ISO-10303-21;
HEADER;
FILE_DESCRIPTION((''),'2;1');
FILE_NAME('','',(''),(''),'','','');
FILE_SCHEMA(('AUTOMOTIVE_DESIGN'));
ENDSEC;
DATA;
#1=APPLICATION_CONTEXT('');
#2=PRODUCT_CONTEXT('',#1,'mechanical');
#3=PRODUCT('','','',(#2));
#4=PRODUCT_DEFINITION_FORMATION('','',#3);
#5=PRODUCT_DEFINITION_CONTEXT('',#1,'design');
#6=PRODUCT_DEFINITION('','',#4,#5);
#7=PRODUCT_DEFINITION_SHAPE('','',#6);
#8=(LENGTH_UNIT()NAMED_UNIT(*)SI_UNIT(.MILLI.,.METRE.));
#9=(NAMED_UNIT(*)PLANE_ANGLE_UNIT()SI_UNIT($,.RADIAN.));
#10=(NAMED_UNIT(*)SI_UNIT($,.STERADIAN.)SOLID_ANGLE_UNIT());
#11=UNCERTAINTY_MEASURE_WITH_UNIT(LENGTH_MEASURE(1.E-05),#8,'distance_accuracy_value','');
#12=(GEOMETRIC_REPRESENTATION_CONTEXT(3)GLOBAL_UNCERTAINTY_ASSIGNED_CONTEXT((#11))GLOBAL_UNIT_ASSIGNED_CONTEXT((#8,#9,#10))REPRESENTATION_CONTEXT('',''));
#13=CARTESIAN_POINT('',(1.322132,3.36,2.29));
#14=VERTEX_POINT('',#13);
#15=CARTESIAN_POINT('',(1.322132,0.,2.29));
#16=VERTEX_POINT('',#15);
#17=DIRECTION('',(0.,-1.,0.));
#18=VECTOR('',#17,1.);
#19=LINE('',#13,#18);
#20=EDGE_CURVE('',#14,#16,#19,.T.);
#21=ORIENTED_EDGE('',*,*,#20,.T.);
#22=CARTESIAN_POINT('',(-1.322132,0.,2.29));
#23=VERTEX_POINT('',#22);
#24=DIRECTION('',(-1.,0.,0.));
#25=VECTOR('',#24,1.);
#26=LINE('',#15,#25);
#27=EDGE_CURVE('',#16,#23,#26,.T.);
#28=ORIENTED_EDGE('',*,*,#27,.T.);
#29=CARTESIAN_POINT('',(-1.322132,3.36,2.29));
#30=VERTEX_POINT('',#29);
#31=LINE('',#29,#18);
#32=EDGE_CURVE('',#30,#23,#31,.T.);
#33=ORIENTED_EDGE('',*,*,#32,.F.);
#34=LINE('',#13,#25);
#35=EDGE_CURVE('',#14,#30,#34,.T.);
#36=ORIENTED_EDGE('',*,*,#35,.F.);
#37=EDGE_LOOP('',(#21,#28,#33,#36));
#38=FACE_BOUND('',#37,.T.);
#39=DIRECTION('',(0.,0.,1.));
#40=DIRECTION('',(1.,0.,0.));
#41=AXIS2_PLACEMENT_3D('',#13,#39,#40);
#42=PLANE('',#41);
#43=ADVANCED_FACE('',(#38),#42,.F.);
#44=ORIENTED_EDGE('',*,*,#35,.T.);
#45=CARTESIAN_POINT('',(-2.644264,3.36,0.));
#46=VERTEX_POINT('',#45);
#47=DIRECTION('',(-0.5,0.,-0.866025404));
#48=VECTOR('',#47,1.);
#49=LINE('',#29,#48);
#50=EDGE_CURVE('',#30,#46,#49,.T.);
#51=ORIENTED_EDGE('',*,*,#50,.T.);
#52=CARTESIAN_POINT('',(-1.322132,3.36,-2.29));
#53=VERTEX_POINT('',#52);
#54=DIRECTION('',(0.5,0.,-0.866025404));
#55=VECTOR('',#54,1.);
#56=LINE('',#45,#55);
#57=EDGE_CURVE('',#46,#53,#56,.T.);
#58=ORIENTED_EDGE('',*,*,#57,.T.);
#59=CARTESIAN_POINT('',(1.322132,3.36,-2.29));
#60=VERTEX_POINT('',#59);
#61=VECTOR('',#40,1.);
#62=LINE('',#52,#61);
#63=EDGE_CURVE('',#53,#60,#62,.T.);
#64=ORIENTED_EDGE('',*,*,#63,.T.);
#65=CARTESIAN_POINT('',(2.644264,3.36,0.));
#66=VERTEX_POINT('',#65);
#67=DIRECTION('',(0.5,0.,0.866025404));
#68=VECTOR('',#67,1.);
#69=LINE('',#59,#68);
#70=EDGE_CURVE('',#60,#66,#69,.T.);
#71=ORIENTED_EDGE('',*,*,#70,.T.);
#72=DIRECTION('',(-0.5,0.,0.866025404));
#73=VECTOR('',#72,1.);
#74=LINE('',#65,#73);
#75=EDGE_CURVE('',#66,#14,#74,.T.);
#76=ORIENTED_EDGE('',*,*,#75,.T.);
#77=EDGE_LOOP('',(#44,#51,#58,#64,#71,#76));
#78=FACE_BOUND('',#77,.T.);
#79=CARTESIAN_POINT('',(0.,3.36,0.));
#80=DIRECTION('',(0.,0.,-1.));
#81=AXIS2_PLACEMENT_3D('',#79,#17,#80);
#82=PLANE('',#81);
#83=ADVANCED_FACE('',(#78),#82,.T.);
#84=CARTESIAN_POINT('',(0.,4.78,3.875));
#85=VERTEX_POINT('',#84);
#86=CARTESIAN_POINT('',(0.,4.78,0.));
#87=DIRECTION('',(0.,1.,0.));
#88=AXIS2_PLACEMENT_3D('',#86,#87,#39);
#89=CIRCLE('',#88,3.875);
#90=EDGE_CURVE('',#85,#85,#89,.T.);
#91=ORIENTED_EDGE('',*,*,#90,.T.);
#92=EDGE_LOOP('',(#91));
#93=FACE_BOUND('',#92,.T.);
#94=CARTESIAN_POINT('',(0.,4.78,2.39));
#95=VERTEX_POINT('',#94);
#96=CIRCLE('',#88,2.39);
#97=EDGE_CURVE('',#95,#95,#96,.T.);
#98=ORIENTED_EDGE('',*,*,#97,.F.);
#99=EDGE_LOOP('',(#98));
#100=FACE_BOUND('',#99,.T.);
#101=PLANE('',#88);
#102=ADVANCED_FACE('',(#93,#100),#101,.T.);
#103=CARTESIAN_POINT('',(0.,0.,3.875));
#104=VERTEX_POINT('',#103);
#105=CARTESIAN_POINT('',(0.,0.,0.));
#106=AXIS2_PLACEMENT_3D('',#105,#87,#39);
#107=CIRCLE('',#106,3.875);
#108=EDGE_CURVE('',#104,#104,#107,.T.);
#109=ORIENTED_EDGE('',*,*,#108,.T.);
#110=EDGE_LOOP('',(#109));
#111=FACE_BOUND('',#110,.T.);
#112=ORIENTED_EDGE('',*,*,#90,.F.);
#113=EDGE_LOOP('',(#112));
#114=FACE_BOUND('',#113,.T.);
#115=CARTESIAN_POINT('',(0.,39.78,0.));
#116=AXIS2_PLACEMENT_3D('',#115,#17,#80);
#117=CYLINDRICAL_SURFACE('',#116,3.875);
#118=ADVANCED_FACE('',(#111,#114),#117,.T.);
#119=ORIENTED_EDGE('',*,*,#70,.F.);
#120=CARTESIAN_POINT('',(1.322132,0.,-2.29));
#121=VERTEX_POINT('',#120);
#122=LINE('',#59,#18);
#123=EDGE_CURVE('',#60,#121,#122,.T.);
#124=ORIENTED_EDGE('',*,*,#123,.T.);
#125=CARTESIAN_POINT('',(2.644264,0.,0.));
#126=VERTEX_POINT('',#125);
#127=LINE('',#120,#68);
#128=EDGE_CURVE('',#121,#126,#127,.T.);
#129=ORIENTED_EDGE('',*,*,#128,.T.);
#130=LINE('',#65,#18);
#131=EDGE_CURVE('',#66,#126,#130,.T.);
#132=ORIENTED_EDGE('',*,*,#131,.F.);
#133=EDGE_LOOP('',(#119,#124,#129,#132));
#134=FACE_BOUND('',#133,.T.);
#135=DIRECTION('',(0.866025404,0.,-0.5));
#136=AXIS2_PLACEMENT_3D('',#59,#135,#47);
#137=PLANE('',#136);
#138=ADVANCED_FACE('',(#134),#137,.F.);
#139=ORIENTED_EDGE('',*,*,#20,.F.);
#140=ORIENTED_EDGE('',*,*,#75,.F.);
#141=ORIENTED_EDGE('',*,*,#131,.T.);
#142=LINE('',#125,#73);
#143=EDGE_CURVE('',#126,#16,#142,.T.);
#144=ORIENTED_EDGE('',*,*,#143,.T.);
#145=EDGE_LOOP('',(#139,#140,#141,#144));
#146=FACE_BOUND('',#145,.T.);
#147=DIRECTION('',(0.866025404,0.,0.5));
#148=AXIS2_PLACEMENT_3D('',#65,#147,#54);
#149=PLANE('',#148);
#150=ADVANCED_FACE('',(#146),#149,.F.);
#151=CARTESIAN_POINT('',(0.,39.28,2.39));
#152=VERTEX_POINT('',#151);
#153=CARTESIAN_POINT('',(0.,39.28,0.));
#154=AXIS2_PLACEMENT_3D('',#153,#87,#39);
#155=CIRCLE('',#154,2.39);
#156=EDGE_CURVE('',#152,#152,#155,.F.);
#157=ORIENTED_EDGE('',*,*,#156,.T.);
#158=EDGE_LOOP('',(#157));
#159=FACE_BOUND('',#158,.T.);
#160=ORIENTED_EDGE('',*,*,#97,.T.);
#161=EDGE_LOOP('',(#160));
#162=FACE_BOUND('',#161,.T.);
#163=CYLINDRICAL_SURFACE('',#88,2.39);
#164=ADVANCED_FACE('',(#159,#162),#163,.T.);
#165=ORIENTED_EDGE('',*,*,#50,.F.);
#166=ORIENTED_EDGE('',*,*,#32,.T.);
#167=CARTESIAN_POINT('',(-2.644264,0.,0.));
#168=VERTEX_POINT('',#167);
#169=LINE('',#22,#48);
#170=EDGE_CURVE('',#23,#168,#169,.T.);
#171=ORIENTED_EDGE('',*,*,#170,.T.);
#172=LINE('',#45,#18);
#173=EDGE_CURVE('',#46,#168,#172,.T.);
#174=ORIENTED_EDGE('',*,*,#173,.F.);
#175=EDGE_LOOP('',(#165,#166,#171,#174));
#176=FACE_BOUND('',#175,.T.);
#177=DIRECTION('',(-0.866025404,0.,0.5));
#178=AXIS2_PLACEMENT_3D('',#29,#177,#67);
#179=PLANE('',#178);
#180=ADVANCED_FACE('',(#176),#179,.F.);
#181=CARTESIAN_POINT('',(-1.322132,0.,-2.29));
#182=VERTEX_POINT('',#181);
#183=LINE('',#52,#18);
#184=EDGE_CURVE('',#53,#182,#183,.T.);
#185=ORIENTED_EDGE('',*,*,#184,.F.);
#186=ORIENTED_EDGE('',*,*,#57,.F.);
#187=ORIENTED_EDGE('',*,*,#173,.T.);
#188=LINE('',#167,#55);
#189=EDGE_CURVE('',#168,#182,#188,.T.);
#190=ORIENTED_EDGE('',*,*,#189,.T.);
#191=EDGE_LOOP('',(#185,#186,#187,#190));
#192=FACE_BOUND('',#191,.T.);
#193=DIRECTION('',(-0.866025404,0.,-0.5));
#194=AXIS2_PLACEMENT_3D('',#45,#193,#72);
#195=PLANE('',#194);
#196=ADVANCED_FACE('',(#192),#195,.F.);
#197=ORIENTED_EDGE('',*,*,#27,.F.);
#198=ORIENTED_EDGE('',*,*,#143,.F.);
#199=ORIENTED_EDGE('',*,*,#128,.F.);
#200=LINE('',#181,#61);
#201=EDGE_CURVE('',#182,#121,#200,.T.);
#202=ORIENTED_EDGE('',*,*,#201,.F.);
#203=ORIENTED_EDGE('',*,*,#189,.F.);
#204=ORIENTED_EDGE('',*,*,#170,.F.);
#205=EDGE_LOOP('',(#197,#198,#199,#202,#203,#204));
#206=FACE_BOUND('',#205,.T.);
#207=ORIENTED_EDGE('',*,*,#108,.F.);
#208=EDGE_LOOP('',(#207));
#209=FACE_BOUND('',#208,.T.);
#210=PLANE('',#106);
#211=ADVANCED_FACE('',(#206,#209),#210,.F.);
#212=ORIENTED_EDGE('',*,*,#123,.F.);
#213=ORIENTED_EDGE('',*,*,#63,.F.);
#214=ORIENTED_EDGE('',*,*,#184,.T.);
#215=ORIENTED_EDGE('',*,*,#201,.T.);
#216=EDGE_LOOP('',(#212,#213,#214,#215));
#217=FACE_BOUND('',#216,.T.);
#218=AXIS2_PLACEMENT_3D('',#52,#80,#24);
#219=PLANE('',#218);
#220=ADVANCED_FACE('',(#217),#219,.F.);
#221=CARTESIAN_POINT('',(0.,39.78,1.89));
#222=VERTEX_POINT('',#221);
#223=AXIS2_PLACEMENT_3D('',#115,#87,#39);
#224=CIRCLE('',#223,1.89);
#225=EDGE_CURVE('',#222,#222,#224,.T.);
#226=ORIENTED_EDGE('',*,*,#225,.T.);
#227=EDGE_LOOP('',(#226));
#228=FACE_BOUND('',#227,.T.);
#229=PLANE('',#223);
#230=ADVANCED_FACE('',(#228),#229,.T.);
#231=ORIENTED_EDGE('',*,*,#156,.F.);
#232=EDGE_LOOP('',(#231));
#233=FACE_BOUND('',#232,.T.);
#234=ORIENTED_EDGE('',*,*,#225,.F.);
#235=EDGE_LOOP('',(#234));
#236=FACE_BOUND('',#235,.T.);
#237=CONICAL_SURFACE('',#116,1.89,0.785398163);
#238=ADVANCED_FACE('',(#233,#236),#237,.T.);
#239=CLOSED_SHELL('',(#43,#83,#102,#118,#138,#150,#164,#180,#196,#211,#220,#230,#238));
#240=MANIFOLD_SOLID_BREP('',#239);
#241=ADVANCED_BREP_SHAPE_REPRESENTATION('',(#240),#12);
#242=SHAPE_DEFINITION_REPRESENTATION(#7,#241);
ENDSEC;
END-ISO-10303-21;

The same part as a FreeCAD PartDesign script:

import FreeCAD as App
import Part
import Sketcher

V = App.Vector
Q = App.Units.Quantity


def edges_at(feature, points):
    """Names of the edges that pass closest to the given points."""
    edges = feature.Shape.Edges
    near = lambda p: min(range(len(edges)), key=lambda i: edges[i].distToShape(Part.Vertex(*p))[0])
    return sorted({f"Edge{near(p) + 1}" for p in points})


def add_polygon(sketch, points):
    """Adds a closed chain of lines whose ends are joined by coincident constraints."""
    first, n = sketch.GeometryCount, len(points)
    for a, b in zip(points, points[1:] + points[:1]):
        sketch.addGeometry(Part.LineSegment(App.Vector(*a, 0), App.Vector(*b, 0)), False)
    for i in range(n):
        sketch.addConstraint(Sketcher.Constraint("Coincident", first + i, 2, first + (i + 1) % n, 1))

doc = App.newDocument("Part")
params = doc.addObject("Spreadsheet::Sheet", "Params")
for row, (alias, value) in enumerate([
    ("sketch1_diameter", "7.75 mm"),
    ("pad1_length", "39.78 mm"),
    ("sketch2_diameter", "4.78 mm"),
    ("pocket1_length", "35 mm"),
    ("chamfer_size", "0.5 mm"),
    ("pocket2_length", "3.36 mm"),
], start=1):
    params.set(f"A{row}", alias)
    params.set(f"B{row}", "=" + value)
    params.setAlias(f"B{row}", alias)

body = doc.addObject("PartDesign::Body", "Body")

sketch1 = body.newObject("Sketcher::SketchObject", "Sketch")
sketch1.AttachmentSupport = (doc.getObject("XZ_Plane"), [""])
sketch1.MapMode = "FlatFace"
sketch1.addGeometry(Part.Circle(V(0, 0, 0), V(0, 0, 1), 3.875), False)
sketch1.addConstraint([
    Sketcher.Constraint("Coincident", 0, 3, -1, 1),
    Sketcher.Constraint("Diameter", 0, 7.75),
])
sketch1.setExpression("Constraints[1]", "Params.sketch1_diameter")
pad1 = body.newObject("PartDesign::Pad", "Pad")
pad1.Profile = sketch1
pad1.setExpression("Length", "Params.pad1_length")
pad1.Reversed = True

sketch2 = body.newObject("Sketcher::SketchObject", "Sketch001")
sketch2.AttachmentSupport = (doc.getObject("XZ_Plane"), [""])
sketch2.MapMode = "FlatFace"
sketch2.AttachmentOffset = App.Placement(V(0, 0, -39.78), App.Rotation())
add_polygon(sketch2, [(-9.001, -9.001), (-9.001, 9.001), (9.001, 9.001), (9.001, -9.001)])
sketch2.addGeometry(Part.Circle(V(0, 0, 0), V(0, 0, 1), 2.39), False)
sketch2.addConstraint([
    Sketcher.Constraint("Vertical", 0),
    Sketcher.Constraint("Horizontal", 1),
    Sketcher.Constraint("Vertical", 2),
    Sketcher.Constraint("Horizontal", 3),
    Sketcher.Constraint("Coincident", 4, 3, -1, 1),
    Sketcher.Constraint("Symmetric", 0, 2, 2, 2, -1, 1),
    Sketcher.Constraint("Equal", 3, 0),
    Sketcher.Constraint("Diameter", 4, 4.78),
    Sketcher.Constraint("DistanceX", 1, 1, 1, 2, 18.002),
])
sketch2.setExpression("Constraints[11]", "Params.sketch2_diameter")
pocket1 = body.newObject("PartDesign::Pocket", "Pocket")
pocket1.Profile = sketch2
pocket1.setExpression("Length", "Params.pocket1_length")
pocket1.Reversed = True
doc.recompute()

chamfer = body.newObject("PartDesign::Chamfer", "Chamfer")
chamfer.Base = (pocket1, edges_at(pocket1, [(-2.39, 39.78, 0)]))
chamfer.setExpression("Size", "Params.chamfer_size")

sketch3 = body.newObject("Sketcher::SketchObject", "Sketch002")
sketch3.AttachmentSupport = (doc.getObject("XZ_Plane"), [""])
sketch3.MapMode = "FlatFace"
add_polygon(sketch3, [(2.644264, 0), (1.322132, 2.29), (-1.322132, 2.29), (-2.644264, 0), (-1.322132, -2.29), (1.322132, -2.29)])
sketch3.addConstraint([
    Sketcher.Constraint("Horizontal", 1),
    Sketcher.Constraint("Horizontal", 4),
    Sketcher.Constraint("Symmetric", 0, 2, 3, 2, -1, 1),
    Sketcher.Constraint("Symmetric", 2, 2, 5, 2, -1, 1),
    Sketcher.Constraint("PointOnObject", 2, 2, -1),
    Sketcher.Constraint("Parallel", 2, 5),
    Sketcher.Constraint("Vertical", 1, 2, 3, 2),
    Sketcher.Constraint("Angle", 0, Q("120 deg")),
    Sketcher.Constraint("DistanceY", -1, 1, 0, 2, 2.29),
    Sketcher.Constraint("DistanceX", 1, 2, 1, 1, 2.644264),
])
pocket2 = body.newObject("PartDesign::Pocket", "Pocket001")
pocket2.Profile = sketch3
pocket2.setExpression("Length", "Params.pocket2_length")

doc.recompute()
